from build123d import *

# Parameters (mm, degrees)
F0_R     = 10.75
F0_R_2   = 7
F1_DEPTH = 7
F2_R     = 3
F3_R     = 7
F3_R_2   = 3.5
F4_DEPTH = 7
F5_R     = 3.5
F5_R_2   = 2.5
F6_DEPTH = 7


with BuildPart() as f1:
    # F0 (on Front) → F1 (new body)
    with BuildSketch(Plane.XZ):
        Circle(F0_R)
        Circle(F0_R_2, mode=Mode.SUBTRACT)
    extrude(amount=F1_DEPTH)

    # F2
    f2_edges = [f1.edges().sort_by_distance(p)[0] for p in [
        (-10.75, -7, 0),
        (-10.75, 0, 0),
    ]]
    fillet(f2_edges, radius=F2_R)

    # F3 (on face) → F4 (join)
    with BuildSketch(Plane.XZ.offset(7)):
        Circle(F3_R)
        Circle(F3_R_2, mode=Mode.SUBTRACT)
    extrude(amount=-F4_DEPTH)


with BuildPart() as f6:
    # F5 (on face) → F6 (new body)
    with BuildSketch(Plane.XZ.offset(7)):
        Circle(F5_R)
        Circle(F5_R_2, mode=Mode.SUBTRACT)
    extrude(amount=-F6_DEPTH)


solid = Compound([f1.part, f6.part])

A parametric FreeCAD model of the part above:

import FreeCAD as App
import Part
import Sketcher
from FreeCAD import Vector
Q = App.Units.Quantity


def edges_at(feature, points):
    """Names of the edges that pass closest to the given points."""
    edges = feature.Shape.Edges
    near = lambda p: min(range(len(edges)), key=lambda i: edges[i].distToShape(Part.Vertex(*p))[0])
    return sorted({f"Edge{near(p) + 1}" for p in points})

doc = App.newDocument("Part")
body = doc.addObject("PartDesign::Body", "Body")

sketch1 = body.newObject("Sketcher::SketchObject", "Sketch")
sketch1.AttachmentSupport = (doc.getObject("XZ_Plane"), [""])
sketch1.MapMode = "FlatFace"
sketch1.addGeometry([
    Part.Circle(Vector(0, 0, 0), Vector(0, 0, 1), 11),
    Part.Circle(Vector(0, 0, 0), Vector(0, 0, 1), 7),
], False)
sketch1.addConstraint([
    Sketcher.Constraint("Coincident", 0, 3, -1, 1),
    Sketcher.Constraint("Coincident", 1, 3, -1, 1),
    Sketcher.Constraint("Diameter", 1, Q("14 mm")),
    Sketcher.Constraint("Diameter", 0, Q("21.5 mm")),
])
pad1 = body.newObject("PartDesign::Pad", "Pad")
pad1.Profile = sketch1
pad1.Length = 7
doc.recompute()

fillet = body.newObject("PartDesign::Fillet", "Fillet")
fillet.Base = (pad1, edges_at(pad1, [(-10.75, -7, 0), (-10.75, 0, 0)]))
fillet.Radius = 3

sketch2 = body.newObject("Sketcher::SketchObject", "Sketch001")
sketch2.AttachmentSupport = (doc.getObject("XZ_Plane"), [""])
sketch2.MapMode = "FlatFace"
sketch2.AttachmentOffset = App.Placement(Vector(0, 0, 7), App.Rotation())
sketch2.addGeometry([
    Part.Circle(Vector(0, 0, 0), Vector(0, 0, 1), 7),
    Part.Circle(Vector(0, 0, 0), Vector(0, 0, 1), 3.5),
], False)
sketch2.addConstraint([
    Sketcher.Constraint("Coincident", 0, 3, -1, 1),
    Sketcher.Constraint("Coincident", 1, 3, -1, 1),
    Sketcher.Constraint("Diameter", 0, Q("14 mm")),
    Sketcher.Constraint("Diameter", 1, Q("7 mm")),
])
pad2 = body.newObject("PartDesign::Pad", "Pad001")
pad2.Profile = sketch2
pad2.Length = 7
pad2.Reversed = True
body2 = doc.addObject("PartDesign::Body", "Body001")

sketch3 = body2.newObject("Sketcher::SketchObject", "Sketch002")
sketch3.AttachmentSupport = (doc.getObject("XZ_Plane001"), [""])
sketch3.MapMode = "FlatFace"
sketch3.AttachmentOffset = App.Placement(Vector(0, 0, 7), App.Rotation())
sketch3.addGeometry([
    Part.Circle(Vector(0, 0, 0), Vector(0, 0, 1), 3.5),
    Part.Circle(Vector(0, 0, 0), Vector(0, 0, 1), 2.5),
], False)
sketch3.addConstraint([
    Sketcher.Constraint("Coincident", 0, 3, -1, 1),
    Sketcher.Constraint("Coincident", 1, 3, -1, 1),
    Sketcher.Constraint("Diameter", 0, Q("7 mm")),
    Sketcher.Constraint("Diameter", 1, Q("5 mm")),
])
pad3 = body2.newObject("PartDesign::Pad", "Pad002")
pad3.Profile = sketch3
pad3.Length = 7
pad3.Reversed = True

doc.recompute()
